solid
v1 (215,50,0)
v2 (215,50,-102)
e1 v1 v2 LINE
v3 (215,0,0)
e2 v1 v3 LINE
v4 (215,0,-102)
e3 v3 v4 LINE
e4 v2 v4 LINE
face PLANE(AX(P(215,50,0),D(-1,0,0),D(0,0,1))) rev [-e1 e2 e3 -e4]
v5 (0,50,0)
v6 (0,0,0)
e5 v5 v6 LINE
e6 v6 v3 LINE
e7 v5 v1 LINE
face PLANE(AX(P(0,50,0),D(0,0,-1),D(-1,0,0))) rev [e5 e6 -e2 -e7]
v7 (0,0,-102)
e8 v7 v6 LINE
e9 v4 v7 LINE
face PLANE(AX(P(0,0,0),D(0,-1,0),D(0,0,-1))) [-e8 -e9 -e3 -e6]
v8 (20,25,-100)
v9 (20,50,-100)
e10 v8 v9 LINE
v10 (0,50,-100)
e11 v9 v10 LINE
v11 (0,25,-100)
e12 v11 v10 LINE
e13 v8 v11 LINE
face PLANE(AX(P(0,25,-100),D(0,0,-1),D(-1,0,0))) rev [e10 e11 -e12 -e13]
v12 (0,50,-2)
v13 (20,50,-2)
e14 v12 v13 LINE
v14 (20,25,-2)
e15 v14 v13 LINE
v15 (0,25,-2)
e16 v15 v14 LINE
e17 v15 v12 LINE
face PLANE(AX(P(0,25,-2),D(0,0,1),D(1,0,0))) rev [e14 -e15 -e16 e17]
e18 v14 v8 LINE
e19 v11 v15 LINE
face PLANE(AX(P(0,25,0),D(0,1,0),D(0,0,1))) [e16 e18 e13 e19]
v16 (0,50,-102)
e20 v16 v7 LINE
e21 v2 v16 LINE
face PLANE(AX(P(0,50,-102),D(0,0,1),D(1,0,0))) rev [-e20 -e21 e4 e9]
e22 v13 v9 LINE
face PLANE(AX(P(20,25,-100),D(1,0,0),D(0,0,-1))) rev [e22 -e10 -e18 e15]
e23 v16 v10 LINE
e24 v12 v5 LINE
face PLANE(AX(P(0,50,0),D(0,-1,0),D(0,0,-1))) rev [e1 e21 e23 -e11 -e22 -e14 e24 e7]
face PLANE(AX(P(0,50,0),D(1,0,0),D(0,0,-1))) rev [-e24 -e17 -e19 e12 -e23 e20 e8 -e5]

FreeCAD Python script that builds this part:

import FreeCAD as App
import Part
import Sketcher
from FreeCAD import Vector

doc = App.newDocument("Part")
params = doc.addObject("Spreadsheet::Sheet", "Params")
for row, (alias, value) in enumerate([
    ("sketch1_width", "215 mm"),
    ("sketch1_height", "102 mm"),
    ("pad1_length", "50 mm"),
    ("sketch2_width", "20 mm"),
    ("sketch2_height", "98 mm"),
    ("pocket1_length", "25 mm"),
], start=1):
    params.set(f"A{row}", alias)
    params.set(f"B{row}", "=" + value)
    params.setAlias(f"B{row}", alias)

body = doc.addObject("PartDesign::Body", "Body")

sketch1 = doc.addObject("Sketcher::SketchObject", "Sketch")
body.addObject(sketch1)
sketch1.AttachmentSupport = (doc.XZ_Plane, [""])
sketch1.MapMode = "FlatFace"
sketch1.addGeometry(Part.LineSegment(Vector(0, -102, 0), Vector(0, 0, 0)), False)
sketch1.addGeometry(Part.LineSegment(Vector(0, 0, 0), Vector(215, 0, 0)), False)
sketch1.addGeometry(Part.LineSegment(Vector(215, 0, 0), Vector(215, -102, 0)), False)
sketch1.addGeometry(Part.LineSegment(Vector(215, -102, 0), Vector(0, -102, 0)), False)
sketch1.addConstraint(Sketcher.Constraint("Coincident", 0, 2, 1, 1))
sketch1.addConstraint(Sketcher.Constraint("Coincident", 1, 2, 2, 1))
sketch1.addConstraint(Sketcher.Constraint("Coincident", 2, 2, 3, 1))
sketch1.addConstraint(Sketcher.Constraint("Coincident", 3, 2, 0, 1))
sketch1.addConstraint(Sketcher.Constraint("Vertical", 0))
sketch1.addConstraint(Sketcher.Constraint("Horizontal", 1))
sketch1.addConstraint(Sketcher.Constraint("Vertical", 2))
sketch1.addConstraint(Sketcher.Constraint("Horizontal", 3))
sketch1.addConstraint(Sketcher.Constraint("Coincident", 0, 2, -1, 1))
sketch1.addConstraint(Sketcher.Constraint("DistanceX", 1, 1, 1, 2, 215.0))
sketch1.addConstraint(Sketcher.Constraint("DistanceY", 0, 1, 0, 2, 102.0))
sketch1.setExpression("Constraints[9]", "Params.sketch1_width")
sketch1.setExpression("Constraints[10]", "Params.sketch1_height")
pad1 = doc.addObject("PartDesign::Pad", "Pad")
body.addObject(pad1)
pad1.Profile = sketch1
pad1.setExpression("Length", "Params.pad1_length")
pad1.Reversed = True

sketch2 = doc.addObject("Sketcher::SketchObject", "Sketch001")
body.addObject(sketch2)
sketch2.AttachmentSupport = (doc.XZ_Plane, [""])
sketch2.MapMode = "FlatFace"
sketch2.AttachmentOffset = App.Placement(Vector(0, 0, -50), App.Rotation())
sketch2.addGeometry(Part.LineSegment(Vector(0, -100, 0), Vector(0, -2, 0)), False)
sketch2.addGeometry(Part.LineSegment(Vector(0, -2, 0), Vector(20, -2, 0)), False)
sketch2.addGeometry(Part.LineSegment(Vector(20, -2, 0), Vector(20, -100, 0)), False)
sketch2.addGeometry(Part.LineSegment(Vector(20, -100, 0), Vector(0, -100, 0)), False)
sketch2.addConstraint(Sketcher.Constraint("Coincident", 0, 2, 1, 1))
sketch2.addConstraint(Sketcher.Constraint("Coincident", 1, 2, 2, 1))
sketch2.addConstraint(Sketcher.Constraint("Coincident", 2, 2, 3, 1))
sketch2.addConstraint(Sketcher.Constraint("Coincident", 3, 2, 0, 1))
sketch2.addConstraint(Sketcher.Constraint("Vertical", 0))
sketch2.addConstraint(Sketcher.Constraint("Horizontal", 1))
sketch2.addConstraint(Sketcher.Constraint("Vertical", 2))
sketch2.addConstraint(Sketcher.Constraint("Horizontal", 3))
sketch2.addConstraint(Sketcher.Constraint("PointOnObject", 0, 2, -2))
sketch2.addConstraint(Sketcher.Constraint("DistanceX", 1, 1, 1, 2, 20.0))
sketch2.addConstraint(Sketcher.Constraint("DistanceY", 0, 1, 0, 2, 98.0))
sketch2.addConstraint(Sketcher.Constraint("DistanceY", 0, 2, -1, 1, 2.0))
sketch2.setExpression("Constraints[9]", "Params.sketch2_width")
sketch2.setExpression("Constraints[10]", "Params.sketch2_height")
pocket1 = doc.addObject("PartDesign::Pocket", "Pocket")
body.addObject(pocket1)
pocket1.Profile = sketch2
pocket1.setExpression("Length", "Params.pocket1_length")
pocket1.Reversed = True

doc.recompute()
